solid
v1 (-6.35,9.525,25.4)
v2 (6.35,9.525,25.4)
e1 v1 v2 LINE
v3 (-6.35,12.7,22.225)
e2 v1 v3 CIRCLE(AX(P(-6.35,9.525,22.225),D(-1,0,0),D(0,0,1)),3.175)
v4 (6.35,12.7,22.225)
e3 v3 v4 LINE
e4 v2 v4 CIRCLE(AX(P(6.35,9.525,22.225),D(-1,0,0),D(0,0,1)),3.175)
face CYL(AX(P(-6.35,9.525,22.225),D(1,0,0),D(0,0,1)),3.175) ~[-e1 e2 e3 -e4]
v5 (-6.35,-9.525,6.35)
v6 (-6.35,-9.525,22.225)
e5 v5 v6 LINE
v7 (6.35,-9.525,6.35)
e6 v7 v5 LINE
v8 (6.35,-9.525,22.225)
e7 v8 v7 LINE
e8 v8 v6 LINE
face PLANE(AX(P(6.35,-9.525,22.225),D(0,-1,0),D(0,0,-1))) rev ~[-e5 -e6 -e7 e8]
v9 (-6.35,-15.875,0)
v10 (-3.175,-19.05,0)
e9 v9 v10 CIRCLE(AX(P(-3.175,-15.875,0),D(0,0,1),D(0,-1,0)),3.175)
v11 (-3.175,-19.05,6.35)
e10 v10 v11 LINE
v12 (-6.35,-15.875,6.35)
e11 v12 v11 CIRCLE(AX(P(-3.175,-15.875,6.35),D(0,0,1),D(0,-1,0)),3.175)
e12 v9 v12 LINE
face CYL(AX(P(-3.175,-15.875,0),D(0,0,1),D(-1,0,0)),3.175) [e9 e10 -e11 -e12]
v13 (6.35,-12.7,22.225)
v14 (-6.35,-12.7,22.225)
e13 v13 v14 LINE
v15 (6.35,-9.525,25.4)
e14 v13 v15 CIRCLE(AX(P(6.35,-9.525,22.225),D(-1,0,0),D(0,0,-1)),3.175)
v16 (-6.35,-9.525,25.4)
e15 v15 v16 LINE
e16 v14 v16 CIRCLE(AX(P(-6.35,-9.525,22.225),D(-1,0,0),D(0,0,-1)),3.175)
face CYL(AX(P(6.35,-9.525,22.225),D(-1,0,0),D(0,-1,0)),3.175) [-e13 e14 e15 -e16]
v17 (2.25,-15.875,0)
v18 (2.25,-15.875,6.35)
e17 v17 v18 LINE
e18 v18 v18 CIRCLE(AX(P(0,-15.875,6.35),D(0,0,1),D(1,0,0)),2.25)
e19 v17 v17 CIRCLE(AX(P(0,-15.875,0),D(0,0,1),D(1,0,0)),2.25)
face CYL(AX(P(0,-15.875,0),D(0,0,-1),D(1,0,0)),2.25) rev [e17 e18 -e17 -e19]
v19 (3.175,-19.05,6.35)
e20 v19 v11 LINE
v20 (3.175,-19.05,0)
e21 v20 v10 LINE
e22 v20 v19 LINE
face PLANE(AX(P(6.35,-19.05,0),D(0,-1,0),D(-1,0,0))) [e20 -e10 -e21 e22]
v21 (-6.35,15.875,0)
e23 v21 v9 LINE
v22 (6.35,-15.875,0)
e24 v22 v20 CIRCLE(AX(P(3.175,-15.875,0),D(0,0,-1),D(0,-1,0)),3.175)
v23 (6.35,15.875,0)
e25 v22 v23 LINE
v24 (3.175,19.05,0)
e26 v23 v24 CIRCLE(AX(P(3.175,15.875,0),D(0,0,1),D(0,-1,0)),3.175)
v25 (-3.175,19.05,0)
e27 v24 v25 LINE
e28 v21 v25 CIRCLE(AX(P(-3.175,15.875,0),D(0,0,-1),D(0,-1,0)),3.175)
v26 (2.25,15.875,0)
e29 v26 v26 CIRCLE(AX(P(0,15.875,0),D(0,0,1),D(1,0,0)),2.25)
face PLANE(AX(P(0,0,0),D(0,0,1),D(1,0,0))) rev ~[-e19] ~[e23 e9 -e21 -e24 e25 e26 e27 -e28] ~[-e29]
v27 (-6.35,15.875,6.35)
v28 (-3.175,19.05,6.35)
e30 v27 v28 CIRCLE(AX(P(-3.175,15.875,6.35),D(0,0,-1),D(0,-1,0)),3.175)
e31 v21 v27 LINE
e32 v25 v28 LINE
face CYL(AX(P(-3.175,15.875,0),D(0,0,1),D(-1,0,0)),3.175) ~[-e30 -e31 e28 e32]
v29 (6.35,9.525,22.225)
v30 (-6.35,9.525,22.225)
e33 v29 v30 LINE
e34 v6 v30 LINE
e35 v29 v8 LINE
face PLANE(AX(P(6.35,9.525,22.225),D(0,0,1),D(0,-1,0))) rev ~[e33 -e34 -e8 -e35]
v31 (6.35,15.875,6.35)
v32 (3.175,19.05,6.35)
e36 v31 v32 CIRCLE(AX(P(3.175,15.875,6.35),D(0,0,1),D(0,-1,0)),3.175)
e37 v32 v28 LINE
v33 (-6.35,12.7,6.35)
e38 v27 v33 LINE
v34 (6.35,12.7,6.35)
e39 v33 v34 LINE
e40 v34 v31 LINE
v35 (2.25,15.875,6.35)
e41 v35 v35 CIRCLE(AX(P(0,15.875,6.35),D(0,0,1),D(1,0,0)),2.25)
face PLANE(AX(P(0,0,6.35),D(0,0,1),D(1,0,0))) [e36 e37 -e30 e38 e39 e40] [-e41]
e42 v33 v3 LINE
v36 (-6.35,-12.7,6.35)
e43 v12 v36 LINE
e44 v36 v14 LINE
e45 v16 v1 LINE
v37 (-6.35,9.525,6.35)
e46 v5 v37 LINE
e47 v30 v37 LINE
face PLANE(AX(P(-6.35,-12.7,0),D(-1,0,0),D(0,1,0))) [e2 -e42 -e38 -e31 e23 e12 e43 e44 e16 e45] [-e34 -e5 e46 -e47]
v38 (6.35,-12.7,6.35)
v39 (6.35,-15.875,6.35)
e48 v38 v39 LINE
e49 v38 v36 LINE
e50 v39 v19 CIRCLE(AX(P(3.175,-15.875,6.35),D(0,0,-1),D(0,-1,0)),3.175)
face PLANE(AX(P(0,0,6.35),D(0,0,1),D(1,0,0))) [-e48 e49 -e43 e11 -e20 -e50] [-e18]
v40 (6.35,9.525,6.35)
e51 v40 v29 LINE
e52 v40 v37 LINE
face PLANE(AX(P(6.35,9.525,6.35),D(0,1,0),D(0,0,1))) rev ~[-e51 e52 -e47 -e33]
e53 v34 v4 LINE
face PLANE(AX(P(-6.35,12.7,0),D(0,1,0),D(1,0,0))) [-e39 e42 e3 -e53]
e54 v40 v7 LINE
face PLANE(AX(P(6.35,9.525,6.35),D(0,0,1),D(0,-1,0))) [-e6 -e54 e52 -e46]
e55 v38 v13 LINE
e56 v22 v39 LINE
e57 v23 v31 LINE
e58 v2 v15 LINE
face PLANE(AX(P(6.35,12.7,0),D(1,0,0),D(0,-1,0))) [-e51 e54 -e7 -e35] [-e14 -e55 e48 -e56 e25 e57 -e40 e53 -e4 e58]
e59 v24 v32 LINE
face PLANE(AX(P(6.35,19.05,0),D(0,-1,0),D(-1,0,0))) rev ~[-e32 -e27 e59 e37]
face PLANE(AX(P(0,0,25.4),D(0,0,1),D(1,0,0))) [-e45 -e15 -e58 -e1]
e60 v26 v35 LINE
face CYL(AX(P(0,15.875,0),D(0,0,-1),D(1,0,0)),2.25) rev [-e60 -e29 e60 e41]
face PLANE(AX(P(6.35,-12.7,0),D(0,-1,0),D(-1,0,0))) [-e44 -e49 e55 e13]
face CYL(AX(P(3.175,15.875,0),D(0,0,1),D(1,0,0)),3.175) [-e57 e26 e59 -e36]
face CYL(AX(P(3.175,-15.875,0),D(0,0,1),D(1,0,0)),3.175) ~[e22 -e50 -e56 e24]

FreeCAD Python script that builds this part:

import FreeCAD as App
import Part
import Sketcher
Q = App.Units.Quantity


def edges_at(feature, points):
    """Names of the edges that pass closest to the given points."""
    edges = feature.Shape.Edges
    near = lambda p: min(range(len(edges)), key=lambda i: edges[i].distToShape(Part.Vertex(*p))[0])
    return sorted({f"Edge{near(p) + 1}" for p in points})

doc = App.newDocument("Part")
params = doc.addObject("Spreadsheet::Sheet", "Params")
for row, (alias, value) in enumerate([
    ("sketch1_width", "0.5 in"),
    ("sketch1_height", "0.25 in"),
    ("pad1_length", "0.25 in"),
    ("sketch2_height", "1 in"),
    ("sketch2_width", "0.5 in"),
    ("pad2_length", "1 in"),
    ("sketch3_width", "0.75 in"),
    ("sketch3_height", "0.625 in"),
    ("fillet_radius", "0.125 in"),
], start=1):
    params.set(f"A{row}", alias)
    params.set(f"B{row}", "=" + value)
    params.setAlias(f"B{row}", alias)

body = doc.addObject("PartDesign::Body", "Body")
body.AllowCompound = True

# Sketch on XY plane
sketch1 = body.newObject("Sketcher::SketchObject", "Sketch")
sketch1.AttachmentSupport = (doc.getObject("XY_Plane"), [""])
sketch1.MapMode = "FlatFace"
sketch1.addGeometry([
    Part.LineSegment(App.Vector(6.3, -19.1, 0), App.Vector(6.3, -12.7, 0)),  # 0
    Part.LineSegment(App.Vector(6.3, -12.7, 0), App.Vector(-6.3, -12.7, 0)),  # 1
    Part.LineSegment(App.Vector(-6.3, -12.7, 0), App.Vector(-6.3, -19.1, 0)),  # 2
    Part.LineSegment(App.Vector(-6.3, -19.1, 0), App.Vector(6.3, -19.1, 0)),  # 3
    Part.Circle(App.Vector(0, -15.9, 0), App.Vector(0, 0, 1), 2.2),  # 4
    Part.LineSegment(App.Vector(-6.3, 12.7, 0), App.Vector(6.3, 12.7, 0)),  # 5
    Part.LineSegment(App.Vector(6.3, 12.7, 0), App.Vector(6.3, 19.1, 0)),  # 6
    Part.LineSegment(App.Vector(6.3, 19.1, 0), App.Vector(-6.3, 19.1, 0)),  # 7
    Part.LineSegment(App.Vector(-6.3, 19.1, 0), App.Vector(-6.3, 12.7, 0)),  # 8
    Part.Circle(App.Vector(0, 15.9, 0), App.Vector(0, 0, 1), 2.2),  # 9
], False)
sketch1.addConstraint([
    Sketcher.Constraint("Coincident", 0, 2, 1, 1),
    Sketcher.Constraint("Coincident", 1, 2, 2, 1),
    Sketcher.Constraint("Coincident", 2, 2, 3, 1),
    Sketcher.Constraint("Coincident", 3, 2, 0, 1),
    Sketcher.Constraint("Coincident", 5, 2, 6, 1),
    Sketcher.Constraint("Coincident", 6, 2, 7, 1),
    Sketcher.Constraint("Coincident", 7, 2, 8, 1),
    Sketcher.Constraint("Coincident", 8, 2, 5, 1),
    Sketcher.Constraint("Vertical", 0),
    Sketcher.Constraint("Horizontal", 1),
    Sketcher.Constraint("Vertical", 2),
    Sketcher.Constraint("Horizontal", 3),
    Sketcher.Constraint("Horizontal", 5),
    Sketcher.Constraint("Vertical", 6),
    Sketcher.Constraint("Horizontal", 7),
    Sketcher.Constraint("Vertical", 8),
    Sketcher.Constraint("Equal", 4, 9),
    Sketcher.Constraint("Symmetric", 4, 3, 9, 3, -1, 1),
    Sketcher.Constraint("Symmetric", 1, 2, 5, 2, -1, 1),
    Sketcher.Constraint("Symmetric", 3, 2, 7, 2, -1, 1),
    Sketcher.Constraint("PointOnObject", 4, 3, -2),
    Sketcher.Constraint("Vertical", 3, 2, 5, 2),
    Sketcher.Constraint("DistanceX", 1, 2, 1, 1, Q("0.5 in")),
    Sketcher.Constraint("DistanceY", 0, 2, 5, 2, Q("1 in")),
    Sketcher.Constraint("DistanceY", 0, 1, 0, 2, Q("0.25 in")),
    Sketcher.Constraint("Diameter", 4, Q("4.5 mm")),
    Sketcher.Constraint("DistanceY", 4, 3, 9, 3, Q("1.25 in")),
])
sketch1.setExpression("Constraints[22]", "Params.sketch1_width")
sketch1.setExpression("Constraints[24]", "Params.sketch1_height")
pad1 = body.newObject("PartDesign::Pad", "Pad")
pad1.Profile = sketch1
pad1.setExpression("Length", "Params.pad1_length")

# Sketch on XY plane
sketch2 = body.newObject("Sketcher::SketchObject", "Sketch001")
sketch2.AttachmentSupport = (doc.getObject("XY_Plane"), [""])
sketch2.MapMode = "FlatFace"
sketch2.addGeometry([
    Part.LineSegment(App.Vector(-6, -13, 0), App.Vector(6, -13, 0)),
    Part.LineSegment(App.Vector(6, -13, 0), App.Vector(6, 13, 0)),
    Part.LineSegment(App.Vector(6, 13, 0), App.Vector(-6, 13, 0)),
    Part.LineSegment(App.Vector(-6, 13, 0), App.Vector(-6, -13, 0)),
], False)
sketch2.addConstraint([
    Sketcher.Constraint("Coincident", 0, 2, 1, 1),
    Sketcher.Constraint("Coincident", 1, 2, 2, 1),
    Sketcher.Constraint("Coincident", 2, 2, 3, 1),
    Sketcher.Constraint("Coincident", 3, 2, 0, 1),
    Sketcher.Constraint("Horizontal", 0),
    Sketcher.Constraint("Vertical", 1),
    Sketcher.Constraint("Horizontal", 2),
    Sketcher.Constraint("Vertical", 3),
    Sketcher.Constraint("Symmetric", 0, 2, 2, 2, -1, 1),
    Sketcher.Constraint("DistanceY", 1, 1, 1, 2, Q("1 in")),
    Sketcher.Constraint("DistanceX", 0, 1, 0, 2, Q("0.5 in")),
])
sketch2.setExpression("Constraints[9]", "Params.sketch2_height")
sketch2.setExpression("Constraints[10]", "Params.sketch2_width")
pad2 = body.newObject("PartDesign::Pad", "Pad001")
pad2.Profile = sketch2
pad2.setExpression("Length", "Params.pad2_length")

# Sketch on YZ plane
sketch3 = body.newObject("Sketcher::SketchObject", "Sketch002")
sketch3.AttachmentSupport = (doc.getObject("YZ_Plane"), [""])
sketch3.MapMode = "FlatFace"
sketch3.AttachmentOffset = App.Placement(App.Vector(0, 0, 0.25 * 25.4), App.Rotation())
sketch3.addGeometry([
    Part.LineSegment(App.Vector(-10, 22, 0), App.Vector(-10, 6, 0)),
    Part.LineSegment(App.Vector(-10, 6, 0), App.Vector(10, 6, 0)),
    Part.LineSegment(App.Vector(10, 6, 0), App.Vector(10, 22, 0)),
    Part.LineSegment(App.Vector(10, 22, 0), App.Vector(-10, 22, 0)),
], False)
sketch3.addConstraint([
    Sketcher.Constraint("Coincident", 0, 2, 1, 1),
    Sketcher.Constraint("Coincident", 1, 2, 2, 1),
    Sketcher.Constraint("Coincident", 2, 2, 3, 1),
    Sketcher.Constraint("Coincident", 3, 2, 0, 1),
    Sketcher.Constraint("Vertical", 0),
    Sketcher.Constraint("Horizontal", 1),
    Sketcher.Constraint("Vertical", 2),
    Sketcher.Constraint("Horizontal", 3),
    Sketcher.Constraint("DistanceX", 1, 1, 1, 2, Q("0.75 in")),
    Sketcher.Constraint("DistanceY", 0, 2, 0, 1, Q("0.625 in")),
    Sketcher.Constraint("DistanceY", -1, 1, 0, 2, Q("0.25 in")),
    Sketcher.Constraint("DistanceX", 0, 2, -1, 1, Q("0.375 in")),
])
sketch3.setExpression("Constraints[8]", "Params.sketch3_width")
sketch3.setExpression("Constraints[9]", "Params.sketch3_height")
pocket1 = body.newObject("PartDesign::Pocket", "Pocket")
pocket1.Profile = sketch3
pocket1.Type = "ThroughAll"
doc.recompute()

fillet = body.newObject("PartDesign::Fillet", "Fillet")
fillet.Base = (pocket1, edges_at(pocket1, [
    (-6.35, 19.05, 3.175),
    (6.35, 19.05, 3.175),
    (0, 12.7, 25.4),
    (0, -12.7, 25.4),
    (6.35, -19.05, 3.175),
    (-6.35, -19.05, 3.175),
]))
fillet.setExpression("Radius", "Params.fillet_radius")

doc.recompute()
